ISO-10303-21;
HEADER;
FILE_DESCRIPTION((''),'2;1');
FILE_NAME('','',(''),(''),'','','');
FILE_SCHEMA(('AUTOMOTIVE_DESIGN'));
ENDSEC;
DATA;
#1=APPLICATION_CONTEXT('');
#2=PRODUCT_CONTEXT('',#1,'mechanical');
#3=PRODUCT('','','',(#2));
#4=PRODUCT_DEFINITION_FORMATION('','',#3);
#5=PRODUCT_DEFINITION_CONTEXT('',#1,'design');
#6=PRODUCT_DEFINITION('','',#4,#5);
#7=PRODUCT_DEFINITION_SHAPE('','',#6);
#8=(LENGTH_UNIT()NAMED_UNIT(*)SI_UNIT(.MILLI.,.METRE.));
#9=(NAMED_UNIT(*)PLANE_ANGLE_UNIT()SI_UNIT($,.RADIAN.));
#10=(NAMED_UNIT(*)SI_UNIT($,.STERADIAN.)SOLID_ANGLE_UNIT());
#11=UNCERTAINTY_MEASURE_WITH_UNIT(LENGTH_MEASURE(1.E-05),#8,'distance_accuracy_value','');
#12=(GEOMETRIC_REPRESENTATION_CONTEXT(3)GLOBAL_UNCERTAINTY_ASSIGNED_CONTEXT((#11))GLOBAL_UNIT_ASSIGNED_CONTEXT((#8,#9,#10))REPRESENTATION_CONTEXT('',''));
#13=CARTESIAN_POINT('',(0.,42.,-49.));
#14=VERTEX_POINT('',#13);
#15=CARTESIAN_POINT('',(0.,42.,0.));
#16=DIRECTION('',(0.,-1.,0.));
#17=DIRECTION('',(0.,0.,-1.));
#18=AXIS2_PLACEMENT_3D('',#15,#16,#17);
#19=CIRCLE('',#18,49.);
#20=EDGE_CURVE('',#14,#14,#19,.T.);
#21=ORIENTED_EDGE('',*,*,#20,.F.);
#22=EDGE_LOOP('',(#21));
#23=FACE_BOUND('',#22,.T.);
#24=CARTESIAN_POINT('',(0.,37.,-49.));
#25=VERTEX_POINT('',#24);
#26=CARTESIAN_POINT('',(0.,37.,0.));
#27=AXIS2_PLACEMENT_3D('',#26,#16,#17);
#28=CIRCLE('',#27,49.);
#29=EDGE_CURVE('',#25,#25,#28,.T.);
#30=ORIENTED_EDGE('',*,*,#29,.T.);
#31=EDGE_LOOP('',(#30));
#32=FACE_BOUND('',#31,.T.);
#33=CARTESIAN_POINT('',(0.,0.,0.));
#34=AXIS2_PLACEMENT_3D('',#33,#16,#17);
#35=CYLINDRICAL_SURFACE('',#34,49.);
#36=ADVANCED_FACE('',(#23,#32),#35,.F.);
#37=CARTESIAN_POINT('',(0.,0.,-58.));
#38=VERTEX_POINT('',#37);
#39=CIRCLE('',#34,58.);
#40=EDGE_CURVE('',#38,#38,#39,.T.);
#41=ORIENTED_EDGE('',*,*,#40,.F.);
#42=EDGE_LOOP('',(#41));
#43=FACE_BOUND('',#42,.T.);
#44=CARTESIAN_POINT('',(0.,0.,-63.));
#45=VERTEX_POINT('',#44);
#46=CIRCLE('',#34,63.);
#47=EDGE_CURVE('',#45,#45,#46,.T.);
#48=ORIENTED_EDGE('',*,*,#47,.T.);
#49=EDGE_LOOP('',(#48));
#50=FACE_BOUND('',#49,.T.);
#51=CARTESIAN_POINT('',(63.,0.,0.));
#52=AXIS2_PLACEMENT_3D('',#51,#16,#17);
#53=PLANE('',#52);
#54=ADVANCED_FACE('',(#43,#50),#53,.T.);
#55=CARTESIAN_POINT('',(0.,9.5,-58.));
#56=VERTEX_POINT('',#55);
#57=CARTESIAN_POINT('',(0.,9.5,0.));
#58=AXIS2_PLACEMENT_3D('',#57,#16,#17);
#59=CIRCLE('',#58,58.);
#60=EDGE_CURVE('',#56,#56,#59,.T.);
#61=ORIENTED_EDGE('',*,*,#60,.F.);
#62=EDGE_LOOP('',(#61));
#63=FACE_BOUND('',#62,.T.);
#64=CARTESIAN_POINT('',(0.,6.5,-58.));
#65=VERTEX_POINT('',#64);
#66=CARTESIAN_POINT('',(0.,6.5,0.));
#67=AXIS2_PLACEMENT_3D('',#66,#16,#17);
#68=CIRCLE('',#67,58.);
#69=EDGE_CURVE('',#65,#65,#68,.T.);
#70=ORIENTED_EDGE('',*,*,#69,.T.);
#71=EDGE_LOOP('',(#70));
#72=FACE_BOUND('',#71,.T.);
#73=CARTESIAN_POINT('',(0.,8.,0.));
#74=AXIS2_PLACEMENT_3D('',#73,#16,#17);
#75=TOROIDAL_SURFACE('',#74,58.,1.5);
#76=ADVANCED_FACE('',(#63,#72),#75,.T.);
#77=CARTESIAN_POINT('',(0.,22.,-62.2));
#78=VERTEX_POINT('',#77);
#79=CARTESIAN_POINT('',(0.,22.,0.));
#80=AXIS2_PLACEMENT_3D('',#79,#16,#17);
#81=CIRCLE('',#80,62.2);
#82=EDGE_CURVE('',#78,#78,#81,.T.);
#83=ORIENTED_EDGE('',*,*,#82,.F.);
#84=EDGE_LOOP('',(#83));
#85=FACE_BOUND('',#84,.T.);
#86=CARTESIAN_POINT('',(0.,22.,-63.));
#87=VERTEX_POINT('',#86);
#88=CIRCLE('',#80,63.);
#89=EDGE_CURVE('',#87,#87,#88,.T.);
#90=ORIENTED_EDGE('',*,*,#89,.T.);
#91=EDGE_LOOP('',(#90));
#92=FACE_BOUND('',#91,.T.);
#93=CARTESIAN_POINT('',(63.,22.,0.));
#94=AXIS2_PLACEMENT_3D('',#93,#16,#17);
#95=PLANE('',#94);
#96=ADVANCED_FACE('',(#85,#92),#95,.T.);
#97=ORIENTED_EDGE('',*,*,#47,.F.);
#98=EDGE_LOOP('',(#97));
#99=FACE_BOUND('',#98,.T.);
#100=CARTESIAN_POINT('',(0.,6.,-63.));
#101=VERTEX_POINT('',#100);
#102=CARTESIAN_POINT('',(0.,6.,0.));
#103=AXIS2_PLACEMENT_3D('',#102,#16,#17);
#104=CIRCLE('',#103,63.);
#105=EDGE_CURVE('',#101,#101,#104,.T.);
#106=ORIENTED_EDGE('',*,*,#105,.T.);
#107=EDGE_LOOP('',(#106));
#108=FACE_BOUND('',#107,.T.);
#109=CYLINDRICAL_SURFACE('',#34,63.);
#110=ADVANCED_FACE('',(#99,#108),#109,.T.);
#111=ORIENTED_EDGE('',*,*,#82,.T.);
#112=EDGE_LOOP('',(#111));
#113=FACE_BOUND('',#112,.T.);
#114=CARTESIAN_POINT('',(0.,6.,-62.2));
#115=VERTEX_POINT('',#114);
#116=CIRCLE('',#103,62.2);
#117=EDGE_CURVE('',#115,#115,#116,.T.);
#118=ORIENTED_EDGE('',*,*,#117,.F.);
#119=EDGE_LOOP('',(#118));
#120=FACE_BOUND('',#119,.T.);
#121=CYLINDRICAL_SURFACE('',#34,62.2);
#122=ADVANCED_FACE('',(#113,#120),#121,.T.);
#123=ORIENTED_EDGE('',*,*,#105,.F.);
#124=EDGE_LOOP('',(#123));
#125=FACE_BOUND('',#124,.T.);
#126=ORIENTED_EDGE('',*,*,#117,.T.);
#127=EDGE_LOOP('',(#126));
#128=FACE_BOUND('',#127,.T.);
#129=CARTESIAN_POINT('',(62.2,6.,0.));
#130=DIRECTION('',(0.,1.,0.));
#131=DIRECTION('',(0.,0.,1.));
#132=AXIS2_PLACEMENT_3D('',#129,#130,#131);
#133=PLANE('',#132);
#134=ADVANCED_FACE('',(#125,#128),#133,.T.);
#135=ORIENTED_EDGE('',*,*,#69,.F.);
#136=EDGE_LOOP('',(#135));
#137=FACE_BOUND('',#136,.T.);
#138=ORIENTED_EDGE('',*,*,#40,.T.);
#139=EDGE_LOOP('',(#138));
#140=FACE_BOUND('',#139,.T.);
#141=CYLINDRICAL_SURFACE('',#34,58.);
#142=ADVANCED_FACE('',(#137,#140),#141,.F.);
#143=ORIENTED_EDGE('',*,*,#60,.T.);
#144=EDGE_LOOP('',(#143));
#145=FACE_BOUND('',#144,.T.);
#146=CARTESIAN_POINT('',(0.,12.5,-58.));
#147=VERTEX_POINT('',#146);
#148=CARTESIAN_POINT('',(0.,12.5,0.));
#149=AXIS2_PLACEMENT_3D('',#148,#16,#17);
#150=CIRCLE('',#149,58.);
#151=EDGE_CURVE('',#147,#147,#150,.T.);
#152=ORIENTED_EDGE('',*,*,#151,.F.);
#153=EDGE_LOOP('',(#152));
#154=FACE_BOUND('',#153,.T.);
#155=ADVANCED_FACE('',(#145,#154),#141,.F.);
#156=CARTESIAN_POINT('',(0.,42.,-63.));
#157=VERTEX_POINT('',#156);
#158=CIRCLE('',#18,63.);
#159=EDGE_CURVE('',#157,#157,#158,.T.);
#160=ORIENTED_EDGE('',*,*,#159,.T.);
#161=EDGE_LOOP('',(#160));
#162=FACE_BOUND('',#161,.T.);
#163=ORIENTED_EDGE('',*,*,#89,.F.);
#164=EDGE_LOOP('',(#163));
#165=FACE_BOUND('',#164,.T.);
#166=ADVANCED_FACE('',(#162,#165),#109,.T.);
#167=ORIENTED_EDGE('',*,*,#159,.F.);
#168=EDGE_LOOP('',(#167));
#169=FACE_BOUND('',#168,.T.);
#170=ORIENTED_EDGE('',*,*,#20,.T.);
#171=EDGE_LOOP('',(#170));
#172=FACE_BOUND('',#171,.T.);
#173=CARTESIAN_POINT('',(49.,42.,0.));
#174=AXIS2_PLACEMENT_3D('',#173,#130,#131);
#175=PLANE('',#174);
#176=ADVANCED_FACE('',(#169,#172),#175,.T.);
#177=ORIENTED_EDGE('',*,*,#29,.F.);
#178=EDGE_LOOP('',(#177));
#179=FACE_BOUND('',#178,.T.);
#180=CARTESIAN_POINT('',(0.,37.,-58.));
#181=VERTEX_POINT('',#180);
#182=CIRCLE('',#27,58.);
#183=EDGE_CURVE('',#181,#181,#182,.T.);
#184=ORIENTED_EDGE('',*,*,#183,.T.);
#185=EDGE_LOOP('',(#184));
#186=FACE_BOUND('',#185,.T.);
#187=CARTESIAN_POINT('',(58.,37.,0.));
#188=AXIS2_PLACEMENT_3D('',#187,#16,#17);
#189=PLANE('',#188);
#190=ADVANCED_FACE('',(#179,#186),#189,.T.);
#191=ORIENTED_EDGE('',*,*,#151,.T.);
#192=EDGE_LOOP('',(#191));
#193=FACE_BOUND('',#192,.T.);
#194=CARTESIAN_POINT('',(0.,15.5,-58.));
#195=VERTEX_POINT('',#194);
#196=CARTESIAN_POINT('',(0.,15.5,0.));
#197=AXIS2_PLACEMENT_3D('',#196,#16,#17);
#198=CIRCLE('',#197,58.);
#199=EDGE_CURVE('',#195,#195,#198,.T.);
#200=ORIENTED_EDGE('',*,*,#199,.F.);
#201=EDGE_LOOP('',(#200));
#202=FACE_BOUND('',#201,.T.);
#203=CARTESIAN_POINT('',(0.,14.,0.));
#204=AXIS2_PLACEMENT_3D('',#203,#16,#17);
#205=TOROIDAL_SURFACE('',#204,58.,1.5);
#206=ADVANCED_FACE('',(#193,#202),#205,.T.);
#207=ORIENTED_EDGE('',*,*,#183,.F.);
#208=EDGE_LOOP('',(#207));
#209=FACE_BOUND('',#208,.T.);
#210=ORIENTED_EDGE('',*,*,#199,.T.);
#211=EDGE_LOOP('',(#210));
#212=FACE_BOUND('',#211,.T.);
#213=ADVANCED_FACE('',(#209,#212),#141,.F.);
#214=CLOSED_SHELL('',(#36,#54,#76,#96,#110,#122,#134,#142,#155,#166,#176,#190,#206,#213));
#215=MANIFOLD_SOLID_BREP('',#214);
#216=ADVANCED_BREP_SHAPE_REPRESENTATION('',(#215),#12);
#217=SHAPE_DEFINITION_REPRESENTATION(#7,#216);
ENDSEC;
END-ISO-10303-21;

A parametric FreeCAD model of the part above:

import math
import FreeCAD as App
import Part
import Sketcher
from FreeCAD import Vector

doc = App.newDocument("Part")
body = doc.addObject("PartDesign::Body", "Body")

# Sketch on XY plane
sketch1 = body.newObject("Sketcher::SketchObject", "Sketch")
sketch1.AttachmentSupport = (doc.getObject("XY_Plane"), [""])
sketch1.MapMode = "FlatFace"
sketch1.addGeometry([
    Part.LineSegment(Vector(63, 42, 0), Vector(49, 42, 0)),  # 0
    Part.LineSegment(Vector(49, 42, 0), Vector(49, 37, 0)),  # 1
    Part.LineSegment(Vector(49, 37, 0), Vector(58, 37, 0)),  # 2
    Part.LineSegment(Vector(58, 37, 0), Vector(58, 15.5, 0)),  # 3
    Part.ArcOfCircle(Part.Circle(Vector(58, 14, 0), Vector(0, 0, 1), 1.5), math.radians(90), math.radians(270)),  # 4
    Part.LineSegment(Vector(58, 12.5, 0), Vector(58, 9.5, 0)),  # 5
    Part.ArcOfCircle(Part.Circle(Vector(58, 8, 0), Vector(0, 0, 1), 1.5), math.radians(90), math.radians(270)),  # 6
    Part.LineSegment(Vector(58, 6.5, 0), Vector(58, 0, 0)),  # 7
    Part.LineSegment(Vector(58, 0, 0), Vector(63, 0, 0)),  # 8
    Part.LineSegment(Vector(63, 0, 0), Vector(63, 6, 0)),  # 9
    Part.LineSegment(Vector(63, 6, 0), Vector(62.2, 6, 0)),  # 10
    Part.LineSegment(Vector(62.2, 6, 0), Vector(62.2, 22, 0)),  # 11
    Part.LineSegment(Vector(62.2, 22, 0), Vector(63, 22, 0)),  # 12
    Part.LineSegment(Vector(63, 22, 0), Vector(63, 42, 0)),  # 13
], False)
sketch1.addConstraint([
    Sketcher.Constraint("Coincident", 0, 2, 1, 1),
    Sketcher.Constraint("Coincident", 1, 2, 2, 1),
    Sketcher.Constraint("Coincident", 2, 2, 3, 1),
    Sketcher.Constraint("Coincident", 3, 2, 4, 1),
    Sketcher.Constraint("Coincident", 4, 2, 5, 1),
    Sketcher.Constraint("Coincident", 5, 2, 6, 1),
    Sketcher.Constraint("Coincident", 6, 2, 7, 1),
    Sketcher.Constraint("Coincident", 7, 2, 8, 1),
    Sketcher.Constraint("Coincident", 8, 2, 9, 1),
    Sketcher.Constraint("Coincident", 9, 2, 10, 1),
    Sketcher.Constraint("Coincident", 10, 2, 11, 1),
    Sketcher.Constraint("Coincident", 11, 2, 12, 1),
    Sketcher.Constraint("Coincident", 12, 2, 13, 1),
    Sketcher.Constraint("Coincident", 13, 2, 0, 1),
    Sketcher.Constraint("Horizontal", 0),
    Sketcher.Constraint("Vertical", 1),
    Sketcher.Constraint("Horizontal", 2),
    Sketcher.Constraint("Vertical", 3),
    Sketcher.Constraint("Vertical", 5),
    Sketcher.Constraint("Vertical", 7),
    Sketcher.Constraint("Horizontal", 8),
    Sketcher.Constraint("Vertical", 9),
    Sketcher.Constraint("Horizontal", 10),
    Sketcher.Constraint("Vertical", 11),
    Sketcher.Constraint("Horizontal", 12),
    Sketcher.Constraint("Vertical", 13),
    Sketcher.Constraint("Equal", 4, 6),
    Sketcher.Constraint("PointOnObject", 7, 2, -1),
    Sketcher.Constraint("Vertical", 4, 3, 6, 3),
    Sketcher.Constraint("Vertical", 6, 3, 2, 2),
    Sketcher.Constraint("Vertical", 3, 2, 4, 2),
    Sketcher.Constraint("Vertical", 5, 2, 6, 2),
    Sketcher.Constraint("Vertical", 9, 2, 12, 2),
    Sketcher.Constraint("Equal", 8, 1),
    Sketcher.Constraint("Radius", 4, 1.5),
    Sketcher.Constraint("DistanceX", 0, 2, 0, 1, 14.0),
    Sketcher.Constraint("DistanceX", 2, 1, 2, 2, 9.0),
    Sketcher.Constraint("DistanceY", 5, 2, 5, 1, 3.0),
    Sketcher.Constraint("DistanceY", 9, 1, 9, 2, 6.0),
    Sketcher.Constraint("DistanceY", 11, 1, 11, 2, 16.0),
    Sketcher.Constraint("DistanceY", 13, 1, 13, 2, 20.0),
    Sketcher.Constraint("DistanceX", 10, 2, 10, 1, 0.8),
    Sketcher.Constraint("DistanceY", 3, 2, 3, 1, 21.5),
    Sketcher.Constraint("DistanceX", -1, 1, 4, 3, 58.0),
])
revolution = body.newObject("PartDesign::Revolution", "Revolution")
revolution.Profile = sketch1
revolution.ReferenceAxis = (sketch1, ["V_Axis"])
revolution.Angle = 360

doc.recompute()
